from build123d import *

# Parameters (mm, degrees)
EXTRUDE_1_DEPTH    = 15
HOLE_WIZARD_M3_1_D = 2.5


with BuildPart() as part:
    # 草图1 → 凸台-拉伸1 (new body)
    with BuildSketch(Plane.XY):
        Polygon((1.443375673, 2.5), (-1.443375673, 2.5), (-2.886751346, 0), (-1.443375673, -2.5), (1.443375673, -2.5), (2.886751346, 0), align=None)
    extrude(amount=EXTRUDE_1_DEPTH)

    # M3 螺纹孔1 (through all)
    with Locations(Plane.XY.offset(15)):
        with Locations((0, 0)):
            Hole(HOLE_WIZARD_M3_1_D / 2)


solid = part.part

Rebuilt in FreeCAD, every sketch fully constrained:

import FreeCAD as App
import Part
import Sketcher
Q = App.Units.Quantity


def add_polygon(sketch, points):
    """Adds a closed chain of lines whose ends are joined by coincident constraints."""
    first, n = sketch.GeometryCount, len(points)
    for a, b in zip(points, points[1:] + points[:1]):
        sketch.addGeometry(Part.LineSegment(App.Vector(*a, 0), App.Vector(*b, 0)), False)
    for i in range(n):
        sketch.addConstraint(Sketcher.Constraint("Coincident", first + i, 2, first + (i + 1) % n, 1))

doc = App.newDocument("Part")
body = doc.addObject("PartDesign::Body", "Body")

# Sketch on XY plane
sketch1 = body.newObject("Sketcher::SketchObject", "Sketch")
sketch1.AttachmentSupport = (doc.getObject("XY_Plane"), [""])
sketch1.MapMode = "FlatFace"
add_polygon(sketch1, [(1.4, 2.5), (-1.4, 2.5), (-2.9, 0), (-1.4, -2.5), (1.4, -2.5), (2.9, 0)])  # lines 0-5
sketch1.addConstraint([
    Sketcher.Constraint("Horizontal", 0),
    Sketcher.Constraint("Horizontal", 3),
    Sketcher.Constraint("Symmetric", 0, 2, 3, 2, -1, 1),
    Sketcher.Constraint("Symmetric", 1, 2, 4, 2, -1, 1),
    Sketcher.Constraint("PointOnObject", 1, 2, -1),
    Sketcher.Constraint("Parallel", 2, 5),
    Sketcher.Constraint("Vertical", 0, 2, 2, 2),
    Sketcher.Constraint("Angle", 1, Q("-120 deg")),
    Sketcher.Constraint("DistanceY", 2, 2, 0, 2, 5.0),
    Sketcher.Constraint("DistanceX", 0, 2, 0, 1, 2.886751),
])
pad1 = body.newObject("PartDesign::Pad", "Pad")
pad1.Profile = sketch1
pad1.Length = 15

# Sketch on XY plane
sketch2 = body.newObject("Sketcher::SketchObject", "Sketch001")
sketch2.AttachmentSupport = (doc.getObject("XY_Plane"), [""])
sketch2.MapMode = "FlatFace"
sketch2.AttachmentOffset = App.Placement(App.Vector(0, 0, 15), App.Rotation())
sketch2.addGeometry(Part.Circle(App.Vector(0, 0, 0), App.Vector(0, 0, 1), 1.2), False)
sketch2.addConstraint([
    Sketcher.Constraint("Coincident", 0, 3, -1, 1),
    Sketcher.Constraint("Diameter", 0, 2.5),
])
doc.recompute()
hole = body.newObject("PartDesign::Hole", "Hole")
hole.Profile = sketch2
hole.ThreadType = "None"
hole.Diameter = 2.5
hole.DepthType = "ThroughAll"

doc.recompute()
